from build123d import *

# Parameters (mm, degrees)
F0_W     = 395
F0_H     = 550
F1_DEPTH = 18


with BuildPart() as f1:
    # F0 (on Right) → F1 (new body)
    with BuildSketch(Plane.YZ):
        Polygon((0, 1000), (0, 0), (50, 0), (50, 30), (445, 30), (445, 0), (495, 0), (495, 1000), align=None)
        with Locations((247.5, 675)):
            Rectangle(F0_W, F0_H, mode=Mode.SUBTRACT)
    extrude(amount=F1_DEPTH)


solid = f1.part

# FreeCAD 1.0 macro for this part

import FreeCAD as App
import Part
import Sketcher
from FreeCAD import Vector
Q = App.Units.Quantity


def add_polygon(sketch, points):
    """Adds a closed chain of lines whose ends are joined by coincident constraints."""
    first, n = sketch.GeometryCount, len(points)
    for a, b in zip(points, points[1:] + points[:1]):
        sketch.addGeometry(Part.LineSegment(App.Vector(*a, 0), App.Vector(*b, 0)), False)
    for i in range(n):
        sketch.addConstraint(Sketcher.Constraint("Coincident", first + i, 2, first + (i + 1) % n, 1))

doc = App.newDocument("Part")
body = doc.addObject("PartDesign::Body", "Body")

# Sketch on YZ plane
sketch1 = body.newObject("Sketcher::SketchObject", "Sketch")
sketch1.AttachmentSupport = (doc.getObject("YZ_Plane"), [""])
sketch1.MapMode = "FlatFace"
add_polygon(sketch1, [(0, 1000), (0, 0), (50, 0), (50, 30), (445, 30), (445, 0), (495, 0), (495, 1000)])  # lines 0-7
add_polygon(sketch1, [(445, 400), (50, 400), (50, 950), (445, 950)])  # lines 8-11
sketch1.addConstraint(Sketcher.Constraint("Vertical", 0))
sketch1.addConstraint(Sketcher.Constraint("Horizontal", 1))
sketch1.addConstraint(Sketcher.Constraint("Vertical", 2))
sketch1.addConstraint(Sketcher.Constraint("Horizontal", 3))
sketch1.addConstraint(Sketcher.Constraint("Vertical", 4))
sketch1.addConstraint(Sketcher.Constraint("Horizontal", 5))
sketch1.addConstraint(Sketcher.Constraint("Vertical", 6))
sketch1.addConstraint(Sketcher.Constraint("Horizontal", 7))
sketch1.addConstraint(Sketcher.Constraint("Horizontal", 8))
sketch1.addConstraint(Sketcher.Constraint("Vertical", 9))
sketch1.addConstraint(Sketcher.Constraint("Horizontal", 10))
sketch1.addConstraint(Sketcher.Constraint("Vertical", 11))
sketch1.addConstraint(Sketcher.Constraint("Coincident", 0, 2, -1, 1))
sketch1.addConstraint(Sketcher.Constraint("PointOnObject", 4, 2, -1))
sketch1.addConstraint(Sketcher.Constraint("Vertical", 2, 2, 8, 2))
sketch1.addConstraint(Sketcher.Constraint("Vertical", 4, 2, 10, 2))
sketch1.addConstraint(Sketcher.Constraint("Equal", 1, 5))
sketch1.addConstraint(Sketcher.Constraint("DistanceX", 1, 1, 1, 2, Q("50 mm")))
sketch1.addConstraint(Sketcher.Constraint("DistanceX", 3, 1, 3, 2, Q("395 mm")))
sketch1.addConstraint(Sketcher.Constraint("DistanceY", 0, 2, 0, 1, Q("1000 mm")))
sketch1.addConstraint(Sketcher.Constraint("DistanceY", 2, 1, 2, 2, Q("30 mm")))
sketch1.addConstraint(Sketcher.Constraint("DistanceY", 9, 1, 9, 2, Q("550 mm")))
sketch1.addConstraint(Sketcher.Constraint("DistanceY", -1, 1, 8, 2, Q("400 mm")))
pad1 = body.newObject("PartDesign::Pad", "Pad")
pad1.Profile = sketch1
pad1.Length = 18

doc.recompute()
